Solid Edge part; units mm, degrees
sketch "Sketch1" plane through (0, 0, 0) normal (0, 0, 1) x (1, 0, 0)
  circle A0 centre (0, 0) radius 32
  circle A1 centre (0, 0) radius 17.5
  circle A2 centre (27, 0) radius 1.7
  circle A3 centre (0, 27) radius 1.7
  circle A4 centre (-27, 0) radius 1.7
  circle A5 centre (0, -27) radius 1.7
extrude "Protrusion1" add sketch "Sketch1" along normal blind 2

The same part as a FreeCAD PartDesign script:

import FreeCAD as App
import Part
import Sketcher

V = App.Vector
Q = App.Units.Quantity

doc = App.newDocument("Part")
body = doc.addObject("PartDesign::Body", "Body")

# Sketch on XY plane
sketch1 = body.newObject("Sketcher::SketchObject", "Sketch")
sketch1.AttachmentSupport = (doc.getObject("XY_Plane"), [""])
sketch1.MapMode = "FlatFace"
sketch1.addGeometry(Part.Circle(V(0, 0, 0), V(0, 0, 1), 32), False)
sketch1.addGeometry(Part.Circle(V(0, -27, 0), V(0, 0, 1), 1.7), False)
sketch1.addGeometry(Part.Circle(V(-27, 0, 0), V(0, 0, 1), 1.7), False)
sketch1.addGeometry(Part.Circle(V(0, 0, 0), V(0, 0, 1), 17.5), False)
sketch1.addGeometry(Part.Circle(V(27, 0, 0), V(0, 0, 1), 1.7), False)
sketch1.addGeometry(Part.Circle(V(0, 27, 0), V(0, 0, 1), 1.7), False)
sketch1.addConstraint(Sketcher.Constraint("Coincident", 0, 3, -1, 1))
sketch1.addConstraint(Sketcher.Constraint("Coincident", 3, 3, -1, 1))
sketch1.addConstraint(Sketcher.Constraint("Equal", 1, 2))
sketch1.addConstraint(Sketcher.Constraint("Equal", 2, 4))
sketch1.addConstraint(Sketcher.Constraint("Equal", 4, 5))
sketch1.addConstraint(Sketcher.Constraint("Symmetric", 2, 3, 4, 3, -1, 1))
sketch1.addConstraint(Sketcher.Constraint("Symmetric", 1, 3, 5, 3, -1, 1))
sketch1.addConstraint(Sketcher.Constraint("PointOnObject", 1, 3, -2))
sketch1.addConstraint(Sketcher.Constraint("PointOnObject", 2, 3, -1))
sketch1.addConstraint(Sketcher.Constraint("Diameter", 0, Q("64 mm")))
sketch1.addConstraint(Sketcher.Constraint("Diameter", 3, Q("35 mm")))
sketch1.addConstraint(Sketcher.Constraint("Diameter", 1, Q("3.4 mm")))
sketch1.addConstraint(Sketcher.Constraint("DistanceY", 1, 3, -1, 1, Q("27 mm")))
sketch1.addConstraint(Sketcher.Constraint("DistanceX", 2, 3, -1, 1, Q("27 mm")))
pad1 = body.newObject("PartDesign::Pad", "Pad")
pad1.Profile = sketch1
pad1.Length = 2

doc.recompute()
